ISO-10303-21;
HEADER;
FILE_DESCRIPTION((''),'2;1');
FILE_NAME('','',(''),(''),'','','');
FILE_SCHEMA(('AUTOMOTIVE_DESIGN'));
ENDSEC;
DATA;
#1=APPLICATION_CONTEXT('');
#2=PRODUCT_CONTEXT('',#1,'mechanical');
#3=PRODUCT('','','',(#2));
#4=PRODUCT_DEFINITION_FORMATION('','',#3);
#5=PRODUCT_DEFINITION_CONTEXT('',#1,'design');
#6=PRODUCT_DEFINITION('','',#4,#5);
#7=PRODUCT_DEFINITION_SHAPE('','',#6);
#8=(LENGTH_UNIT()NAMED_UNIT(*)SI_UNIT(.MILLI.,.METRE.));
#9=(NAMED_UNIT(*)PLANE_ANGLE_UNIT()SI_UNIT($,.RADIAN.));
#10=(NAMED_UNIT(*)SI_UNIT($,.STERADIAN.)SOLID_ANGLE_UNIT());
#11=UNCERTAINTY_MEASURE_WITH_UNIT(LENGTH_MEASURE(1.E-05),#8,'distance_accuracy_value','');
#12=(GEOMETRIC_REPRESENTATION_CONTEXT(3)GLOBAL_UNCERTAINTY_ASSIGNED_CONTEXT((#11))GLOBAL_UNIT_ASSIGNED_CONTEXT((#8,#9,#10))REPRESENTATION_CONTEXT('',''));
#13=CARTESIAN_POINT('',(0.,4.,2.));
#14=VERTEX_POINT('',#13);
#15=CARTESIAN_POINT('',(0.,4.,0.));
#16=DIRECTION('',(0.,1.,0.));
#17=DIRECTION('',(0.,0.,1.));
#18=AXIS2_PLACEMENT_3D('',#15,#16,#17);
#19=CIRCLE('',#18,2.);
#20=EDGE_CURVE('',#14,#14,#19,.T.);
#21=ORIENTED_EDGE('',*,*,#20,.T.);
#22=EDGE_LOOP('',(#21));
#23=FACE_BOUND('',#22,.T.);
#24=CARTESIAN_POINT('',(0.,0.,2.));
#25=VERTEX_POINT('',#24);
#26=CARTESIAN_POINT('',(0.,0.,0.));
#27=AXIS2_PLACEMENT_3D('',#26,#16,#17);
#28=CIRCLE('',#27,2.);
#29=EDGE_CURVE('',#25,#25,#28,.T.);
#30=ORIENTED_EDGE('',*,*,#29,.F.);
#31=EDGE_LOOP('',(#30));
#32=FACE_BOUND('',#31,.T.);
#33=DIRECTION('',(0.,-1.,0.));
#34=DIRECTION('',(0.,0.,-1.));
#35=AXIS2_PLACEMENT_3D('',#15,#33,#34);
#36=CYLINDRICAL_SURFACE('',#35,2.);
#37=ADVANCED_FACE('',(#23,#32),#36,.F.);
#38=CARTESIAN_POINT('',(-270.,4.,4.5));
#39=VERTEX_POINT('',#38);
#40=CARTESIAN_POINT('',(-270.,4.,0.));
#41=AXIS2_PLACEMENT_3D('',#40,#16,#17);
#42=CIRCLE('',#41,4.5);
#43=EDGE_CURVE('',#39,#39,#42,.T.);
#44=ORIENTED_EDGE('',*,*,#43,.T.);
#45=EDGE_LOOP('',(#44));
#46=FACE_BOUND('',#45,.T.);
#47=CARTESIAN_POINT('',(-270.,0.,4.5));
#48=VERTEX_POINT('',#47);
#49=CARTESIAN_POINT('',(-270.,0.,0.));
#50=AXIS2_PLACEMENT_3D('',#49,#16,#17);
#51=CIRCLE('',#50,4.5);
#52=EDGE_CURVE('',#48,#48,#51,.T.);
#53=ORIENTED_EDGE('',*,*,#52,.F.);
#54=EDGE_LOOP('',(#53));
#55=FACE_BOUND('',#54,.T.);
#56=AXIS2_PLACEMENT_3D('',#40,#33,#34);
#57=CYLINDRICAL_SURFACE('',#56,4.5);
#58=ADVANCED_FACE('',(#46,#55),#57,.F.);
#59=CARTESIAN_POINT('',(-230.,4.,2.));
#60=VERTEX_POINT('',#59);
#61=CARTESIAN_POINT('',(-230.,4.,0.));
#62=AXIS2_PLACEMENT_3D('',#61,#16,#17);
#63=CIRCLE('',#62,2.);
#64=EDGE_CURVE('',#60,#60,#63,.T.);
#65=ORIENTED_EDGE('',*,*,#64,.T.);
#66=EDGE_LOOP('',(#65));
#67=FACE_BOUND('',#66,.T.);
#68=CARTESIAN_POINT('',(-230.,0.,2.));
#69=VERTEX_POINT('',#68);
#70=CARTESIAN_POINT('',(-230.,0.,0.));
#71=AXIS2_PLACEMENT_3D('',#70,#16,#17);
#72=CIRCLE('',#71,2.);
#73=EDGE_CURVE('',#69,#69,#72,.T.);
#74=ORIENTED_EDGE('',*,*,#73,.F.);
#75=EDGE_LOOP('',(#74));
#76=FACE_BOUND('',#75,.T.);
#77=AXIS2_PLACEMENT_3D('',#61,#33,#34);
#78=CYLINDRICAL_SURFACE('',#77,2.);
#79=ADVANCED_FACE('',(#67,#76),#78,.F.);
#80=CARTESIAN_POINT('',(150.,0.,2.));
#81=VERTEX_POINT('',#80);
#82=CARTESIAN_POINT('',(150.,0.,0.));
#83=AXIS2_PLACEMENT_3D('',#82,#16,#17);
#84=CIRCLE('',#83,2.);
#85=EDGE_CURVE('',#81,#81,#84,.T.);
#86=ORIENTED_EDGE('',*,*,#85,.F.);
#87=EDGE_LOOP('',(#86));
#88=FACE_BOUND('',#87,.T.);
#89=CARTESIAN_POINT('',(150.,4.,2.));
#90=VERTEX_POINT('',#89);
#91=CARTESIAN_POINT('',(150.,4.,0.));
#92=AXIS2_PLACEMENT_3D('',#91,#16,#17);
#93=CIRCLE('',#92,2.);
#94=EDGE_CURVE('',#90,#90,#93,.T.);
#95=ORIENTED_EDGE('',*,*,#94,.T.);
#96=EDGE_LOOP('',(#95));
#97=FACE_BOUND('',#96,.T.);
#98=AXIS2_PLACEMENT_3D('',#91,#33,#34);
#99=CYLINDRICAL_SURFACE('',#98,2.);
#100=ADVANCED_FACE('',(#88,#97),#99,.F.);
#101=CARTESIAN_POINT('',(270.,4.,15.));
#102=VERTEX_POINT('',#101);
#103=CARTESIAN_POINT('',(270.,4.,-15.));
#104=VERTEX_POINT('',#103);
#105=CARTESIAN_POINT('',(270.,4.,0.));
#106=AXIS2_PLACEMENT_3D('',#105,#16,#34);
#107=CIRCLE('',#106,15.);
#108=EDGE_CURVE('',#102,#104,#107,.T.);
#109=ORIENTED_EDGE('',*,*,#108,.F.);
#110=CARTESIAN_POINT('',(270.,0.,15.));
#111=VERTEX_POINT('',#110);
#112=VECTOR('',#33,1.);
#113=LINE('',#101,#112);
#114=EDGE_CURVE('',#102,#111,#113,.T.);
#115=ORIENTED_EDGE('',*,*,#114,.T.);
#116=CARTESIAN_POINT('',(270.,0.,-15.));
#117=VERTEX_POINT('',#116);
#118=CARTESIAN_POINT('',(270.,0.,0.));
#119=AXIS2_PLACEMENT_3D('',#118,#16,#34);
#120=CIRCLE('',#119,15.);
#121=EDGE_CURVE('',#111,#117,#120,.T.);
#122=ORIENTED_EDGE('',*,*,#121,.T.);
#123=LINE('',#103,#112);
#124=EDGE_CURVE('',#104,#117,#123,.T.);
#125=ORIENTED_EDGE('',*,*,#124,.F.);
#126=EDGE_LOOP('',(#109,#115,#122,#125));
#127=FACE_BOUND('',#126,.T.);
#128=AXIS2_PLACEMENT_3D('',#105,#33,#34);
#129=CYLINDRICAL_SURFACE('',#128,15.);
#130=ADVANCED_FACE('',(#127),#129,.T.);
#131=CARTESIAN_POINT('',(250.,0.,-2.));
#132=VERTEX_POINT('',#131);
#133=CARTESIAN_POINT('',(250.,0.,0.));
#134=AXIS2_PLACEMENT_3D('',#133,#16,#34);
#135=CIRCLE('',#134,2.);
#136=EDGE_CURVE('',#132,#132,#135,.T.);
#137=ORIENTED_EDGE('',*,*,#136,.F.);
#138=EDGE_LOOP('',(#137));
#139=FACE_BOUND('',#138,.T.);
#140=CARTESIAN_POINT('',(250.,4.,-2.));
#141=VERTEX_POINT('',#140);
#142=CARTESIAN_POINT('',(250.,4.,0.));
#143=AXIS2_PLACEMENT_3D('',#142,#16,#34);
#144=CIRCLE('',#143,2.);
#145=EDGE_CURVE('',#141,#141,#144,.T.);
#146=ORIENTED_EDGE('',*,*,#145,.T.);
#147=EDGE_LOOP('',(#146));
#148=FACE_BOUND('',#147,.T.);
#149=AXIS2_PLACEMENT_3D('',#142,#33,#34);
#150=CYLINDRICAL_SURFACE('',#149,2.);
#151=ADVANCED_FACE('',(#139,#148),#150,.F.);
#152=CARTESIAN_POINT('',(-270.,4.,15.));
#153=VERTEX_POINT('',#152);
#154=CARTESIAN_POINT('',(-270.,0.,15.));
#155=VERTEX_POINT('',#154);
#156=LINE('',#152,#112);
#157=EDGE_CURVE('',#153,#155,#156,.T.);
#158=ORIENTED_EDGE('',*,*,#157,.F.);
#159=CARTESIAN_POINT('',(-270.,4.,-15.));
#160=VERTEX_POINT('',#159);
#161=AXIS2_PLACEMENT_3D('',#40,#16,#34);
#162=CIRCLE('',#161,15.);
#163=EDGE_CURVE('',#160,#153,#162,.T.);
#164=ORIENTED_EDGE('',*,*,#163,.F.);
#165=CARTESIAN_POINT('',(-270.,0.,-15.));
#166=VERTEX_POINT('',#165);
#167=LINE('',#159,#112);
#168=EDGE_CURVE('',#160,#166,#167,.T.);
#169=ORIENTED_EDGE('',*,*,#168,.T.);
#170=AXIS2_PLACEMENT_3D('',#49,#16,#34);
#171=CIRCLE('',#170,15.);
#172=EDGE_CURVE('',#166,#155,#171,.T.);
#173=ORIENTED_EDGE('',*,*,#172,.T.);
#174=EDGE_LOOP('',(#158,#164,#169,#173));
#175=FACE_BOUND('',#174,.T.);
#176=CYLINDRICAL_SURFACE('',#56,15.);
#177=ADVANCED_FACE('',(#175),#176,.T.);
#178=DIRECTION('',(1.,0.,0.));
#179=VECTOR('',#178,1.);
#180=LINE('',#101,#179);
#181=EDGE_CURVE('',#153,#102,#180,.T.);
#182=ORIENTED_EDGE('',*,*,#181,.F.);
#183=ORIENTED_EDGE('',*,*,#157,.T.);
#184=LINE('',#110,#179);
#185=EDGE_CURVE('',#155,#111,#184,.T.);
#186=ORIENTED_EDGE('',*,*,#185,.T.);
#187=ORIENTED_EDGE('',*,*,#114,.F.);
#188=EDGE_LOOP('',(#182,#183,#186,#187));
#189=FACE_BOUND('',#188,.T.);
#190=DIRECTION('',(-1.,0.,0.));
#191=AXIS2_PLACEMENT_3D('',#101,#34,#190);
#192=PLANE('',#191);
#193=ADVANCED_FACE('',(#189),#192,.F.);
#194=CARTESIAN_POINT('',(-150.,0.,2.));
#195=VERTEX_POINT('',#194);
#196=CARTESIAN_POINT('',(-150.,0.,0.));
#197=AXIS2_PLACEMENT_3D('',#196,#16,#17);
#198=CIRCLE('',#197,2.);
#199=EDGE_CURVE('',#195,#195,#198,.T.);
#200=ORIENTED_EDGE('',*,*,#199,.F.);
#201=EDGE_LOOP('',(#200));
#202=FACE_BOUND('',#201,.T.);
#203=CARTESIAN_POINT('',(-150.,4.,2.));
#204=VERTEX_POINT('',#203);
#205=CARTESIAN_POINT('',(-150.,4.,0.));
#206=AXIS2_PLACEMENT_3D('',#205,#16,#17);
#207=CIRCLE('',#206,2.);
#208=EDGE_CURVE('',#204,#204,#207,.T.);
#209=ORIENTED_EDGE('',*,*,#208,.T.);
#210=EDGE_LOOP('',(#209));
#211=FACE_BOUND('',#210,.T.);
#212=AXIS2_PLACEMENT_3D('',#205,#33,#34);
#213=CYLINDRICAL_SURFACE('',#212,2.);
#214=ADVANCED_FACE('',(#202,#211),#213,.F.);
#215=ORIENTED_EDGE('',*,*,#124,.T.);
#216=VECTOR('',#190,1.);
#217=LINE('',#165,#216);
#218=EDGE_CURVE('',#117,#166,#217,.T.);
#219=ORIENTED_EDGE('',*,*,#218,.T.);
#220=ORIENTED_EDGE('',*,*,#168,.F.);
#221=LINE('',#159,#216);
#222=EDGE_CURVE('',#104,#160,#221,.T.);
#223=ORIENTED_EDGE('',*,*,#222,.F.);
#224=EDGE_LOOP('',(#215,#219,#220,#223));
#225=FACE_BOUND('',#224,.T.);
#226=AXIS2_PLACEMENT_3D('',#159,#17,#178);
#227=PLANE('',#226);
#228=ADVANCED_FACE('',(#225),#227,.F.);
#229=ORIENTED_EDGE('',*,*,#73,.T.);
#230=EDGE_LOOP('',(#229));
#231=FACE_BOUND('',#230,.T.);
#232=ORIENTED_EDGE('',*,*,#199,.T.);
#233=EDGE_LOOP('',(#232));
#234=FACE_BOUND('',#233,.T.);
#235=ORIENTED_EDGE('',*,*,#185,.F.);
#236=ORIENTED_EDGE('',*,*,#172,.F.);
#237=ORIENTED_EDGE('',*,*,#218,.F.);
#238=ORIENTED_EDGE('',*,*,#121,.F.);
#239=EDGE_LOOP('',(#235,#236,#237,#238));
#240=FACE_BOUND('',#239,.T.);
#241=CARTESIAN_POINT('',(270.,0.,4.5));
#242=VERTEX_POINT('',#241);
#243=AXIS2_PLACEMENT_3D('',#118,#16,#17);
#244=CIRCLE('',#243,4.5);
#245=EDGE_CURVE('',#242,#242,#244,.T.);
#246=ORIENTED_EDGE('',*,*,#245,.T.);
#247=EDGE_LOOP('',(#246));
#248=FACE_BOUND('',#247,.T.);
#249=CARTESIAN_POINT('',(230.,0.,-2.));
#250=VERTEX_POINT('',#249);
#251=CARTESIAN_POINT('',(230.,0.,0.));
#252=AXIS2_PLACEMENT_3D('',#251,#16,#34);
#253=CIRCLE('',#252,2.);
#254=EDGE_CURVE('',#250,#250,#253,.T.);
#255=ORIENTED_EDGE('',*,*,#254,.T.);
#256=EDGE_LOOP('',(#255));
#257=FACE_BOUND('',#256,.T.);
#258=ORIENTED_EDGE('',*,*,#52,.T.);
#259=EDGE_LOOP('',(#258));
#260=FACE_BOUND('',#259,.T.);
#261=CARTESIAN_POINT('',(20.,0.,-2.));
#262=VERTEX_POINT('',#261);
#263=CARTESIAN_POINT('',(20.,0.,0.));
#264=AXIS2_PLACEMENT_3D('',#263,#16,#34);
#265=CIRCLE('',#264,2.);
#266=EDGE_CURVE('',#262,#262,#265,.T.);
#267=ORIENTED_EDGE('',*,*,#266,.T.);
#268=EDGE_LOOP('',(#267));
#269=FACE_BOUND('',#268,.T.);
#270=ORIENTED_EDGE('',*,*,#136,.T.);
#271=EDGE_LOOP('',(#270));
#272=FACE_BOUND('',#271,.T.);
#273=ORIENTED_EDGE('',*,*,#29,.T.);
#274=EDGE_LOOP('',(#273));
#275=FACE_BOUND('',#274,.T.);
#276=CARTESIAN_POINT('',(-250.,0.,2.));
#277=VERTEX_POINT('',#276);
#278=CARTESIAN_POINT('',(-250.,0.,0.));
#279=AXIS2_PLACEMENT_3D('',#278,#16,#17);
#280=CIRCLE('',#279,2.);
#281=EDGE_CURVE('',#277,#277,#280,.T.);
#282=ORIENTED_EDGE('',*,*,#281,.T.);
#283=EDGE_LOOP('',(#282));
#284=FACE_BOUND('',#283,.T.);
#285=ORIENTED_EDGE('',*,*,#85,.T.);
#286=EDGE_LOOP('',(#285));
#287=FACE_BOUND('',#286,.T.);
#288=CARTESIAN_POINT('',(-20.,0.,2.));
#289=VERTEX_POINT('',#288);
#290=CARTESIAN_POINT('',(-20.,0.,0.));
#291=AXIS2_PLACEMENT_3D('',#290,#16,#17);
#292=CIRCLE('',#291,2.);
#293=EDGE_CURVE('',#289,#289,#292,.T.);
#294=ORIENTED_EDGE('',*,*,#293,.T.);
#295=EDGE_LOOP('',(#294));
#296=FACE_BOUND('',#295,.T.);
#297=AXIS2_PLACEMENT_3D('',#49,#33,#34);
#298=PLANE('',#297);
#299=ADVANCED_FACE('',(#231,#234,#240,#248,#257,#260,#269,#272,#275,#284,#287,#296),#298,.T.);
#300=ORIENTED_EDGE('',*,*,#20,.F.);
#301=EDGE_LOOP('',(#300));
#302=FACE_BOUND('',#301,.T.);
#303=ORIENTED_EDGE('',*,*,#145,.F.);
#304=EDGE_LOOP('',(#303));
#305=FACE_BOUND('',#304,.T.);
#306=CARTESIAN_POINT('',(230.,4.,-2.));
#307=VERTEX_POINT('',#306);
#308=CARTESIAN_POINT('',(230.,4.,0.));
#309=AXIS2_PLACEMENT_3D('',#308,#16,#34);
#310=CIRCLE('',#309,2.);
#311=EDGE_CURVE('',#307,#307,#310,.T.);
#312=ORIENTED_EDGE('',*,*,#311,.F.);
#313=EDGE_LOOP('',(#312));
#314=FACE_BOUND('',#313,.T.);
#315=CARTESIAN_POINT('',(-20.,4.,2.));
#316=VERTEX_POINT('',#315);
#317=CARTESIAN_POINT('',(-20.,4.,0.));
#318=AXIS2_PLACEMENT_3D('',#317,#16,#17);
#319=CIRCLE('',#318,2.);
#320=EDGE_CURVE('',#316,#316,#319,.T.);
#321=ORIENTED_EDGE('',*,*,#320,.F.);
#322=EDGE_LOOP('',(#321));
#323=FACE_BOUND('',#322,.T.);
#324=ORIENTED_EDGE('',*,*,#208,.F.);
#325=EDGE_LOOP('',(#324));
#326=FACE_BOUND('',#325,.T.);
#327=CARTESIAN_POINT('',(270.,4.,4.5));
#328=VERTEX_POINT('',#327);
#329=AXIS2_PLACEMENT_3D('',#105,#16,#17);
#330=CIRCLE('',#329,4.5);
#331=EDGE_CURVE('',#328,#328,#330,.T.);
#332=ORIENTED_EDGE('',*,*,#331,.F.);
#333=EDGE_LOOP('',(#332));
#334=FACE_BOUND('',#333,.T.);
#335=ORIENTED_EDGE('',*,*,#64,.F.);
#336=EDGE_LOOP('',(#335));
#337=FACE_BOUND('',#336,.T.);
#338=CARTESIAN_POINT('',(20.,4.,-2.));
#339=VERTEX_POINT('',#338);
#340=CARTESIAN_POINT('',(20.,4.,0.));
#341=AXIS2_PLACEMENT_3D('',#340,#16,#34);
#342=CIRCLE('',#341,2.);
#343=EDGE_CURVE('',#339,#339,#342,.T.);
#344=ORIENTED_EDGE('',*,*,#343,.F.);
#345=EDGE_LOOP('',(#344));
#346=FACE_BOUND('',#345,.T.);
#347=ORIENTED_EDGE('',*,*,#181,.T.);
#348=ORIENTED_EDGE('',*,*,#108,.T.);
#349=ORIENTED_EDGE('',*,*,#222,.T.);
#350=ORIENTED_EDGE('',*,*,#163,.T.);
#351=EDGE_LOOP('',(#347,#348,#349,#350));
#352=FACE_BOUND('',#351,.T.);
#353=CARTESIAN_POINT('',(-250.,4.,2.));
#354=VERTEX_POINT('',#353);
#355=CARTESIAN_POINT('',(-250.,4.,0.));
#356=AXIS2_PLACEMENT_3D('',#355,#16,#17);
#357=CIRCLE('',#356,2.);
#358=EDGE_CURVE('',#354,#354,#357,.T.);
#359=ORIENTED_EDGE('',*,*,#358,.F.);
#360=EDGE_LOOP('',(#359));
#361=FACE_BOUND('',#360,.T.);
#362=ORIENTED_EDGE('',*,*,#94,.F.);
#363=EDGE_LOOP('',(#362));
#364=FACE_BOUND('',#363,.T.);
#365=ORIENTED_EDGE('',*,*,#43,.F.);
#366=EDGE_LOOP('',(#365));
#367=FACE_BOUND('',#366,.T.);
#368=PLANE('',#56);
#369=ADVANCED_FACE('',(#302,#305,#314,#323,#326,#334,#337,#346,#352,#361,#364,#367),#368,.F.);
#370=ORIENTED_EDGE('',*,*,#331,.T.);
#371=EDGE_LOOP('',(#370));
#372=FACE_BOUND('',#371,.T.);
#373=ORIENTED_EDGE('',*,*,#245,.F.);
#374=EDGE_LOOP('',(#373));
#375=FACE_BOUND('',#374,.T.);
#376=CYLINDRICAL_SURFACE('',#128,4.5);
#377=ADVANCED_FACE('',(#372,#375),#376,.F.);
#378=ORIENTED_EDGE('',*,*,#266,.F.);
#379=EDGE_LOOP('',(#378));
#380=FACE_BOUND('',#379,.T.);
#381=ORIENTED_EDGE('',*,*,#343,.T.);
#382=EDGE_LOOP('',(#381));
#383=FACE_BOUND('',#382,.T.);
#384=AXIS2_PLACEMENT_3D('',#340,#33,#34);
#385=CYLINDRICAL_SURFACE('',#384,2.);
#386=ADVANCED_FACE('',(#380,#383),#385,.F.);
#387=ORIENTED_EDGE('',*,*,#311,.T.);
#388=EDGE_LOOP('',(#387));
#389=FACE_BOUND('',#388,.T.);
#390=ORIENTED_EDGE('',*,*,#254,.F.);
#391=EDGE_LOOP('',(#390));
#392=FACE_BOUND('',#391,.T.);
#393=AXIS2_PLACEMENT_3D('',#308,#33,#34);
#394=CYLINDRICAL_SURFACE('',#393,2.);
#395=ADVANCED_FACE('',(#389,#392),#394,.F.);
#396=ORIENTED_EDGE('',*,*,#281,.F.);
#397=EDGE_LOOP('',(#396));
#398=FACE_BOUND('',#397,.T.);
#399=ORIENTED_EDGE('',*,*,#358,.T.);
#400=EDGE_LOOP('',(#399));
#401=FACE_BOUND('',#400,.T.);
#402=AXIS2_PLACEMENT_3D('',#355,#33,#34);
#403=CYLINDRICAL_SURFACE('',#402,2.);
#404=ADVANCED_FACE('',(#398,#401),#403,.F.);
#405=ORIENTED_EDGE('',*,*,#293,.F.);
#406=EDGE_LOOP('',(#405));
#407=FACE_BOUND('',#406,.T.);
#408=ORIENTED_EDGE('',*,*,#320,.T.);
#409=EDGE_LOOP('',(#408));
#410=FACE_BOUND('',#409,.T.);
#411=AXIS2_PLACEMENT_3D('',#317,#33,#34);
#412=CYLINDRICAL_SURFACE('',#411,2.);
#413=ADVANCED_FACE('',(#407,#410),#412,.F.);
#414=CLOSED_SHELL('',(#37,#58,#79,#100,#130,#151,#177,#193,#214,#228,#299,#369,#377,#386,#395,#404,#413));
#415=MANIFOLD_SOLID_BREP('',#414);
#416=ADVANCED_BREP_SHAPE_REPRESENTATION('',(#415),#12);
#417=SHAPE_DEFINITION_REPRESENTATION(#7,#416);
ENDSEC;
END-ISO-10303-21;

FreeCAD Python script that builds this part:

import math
import FreeCAD as App
import Part
import Sketcher
Q = App.Units.Quantity

doc = App.newDocument("Part")
body = doc.addObject("PartDesign::Body", "Body")

# Sketch on XZ plane
sketch1 = doc.addObject("Sketcher::SketchObject", "Sketch")
body.addObject(sketch1)
sketch1.AttachmentSupport = (doc.XZ_Plane, [""])
sketch1.MapMode = "FlatFace"
sketch1.addGeometry(Part.LineSegment(App.Vector(270, -15, 0), App.Vector(-270, -15, 0)), False)
sketch1.addGeometry(Part.ArcOfCircle(Part.Circle(App.Vector(-270, 0, 0), App.Vector(0, 0, 1), 15), math.radians(90), math.radians(270)), False)
sketch1.addGeometry(Part.LineSegment(App.Vector(-270, 15, 0), App.Vector(270, 15, 0)), False)
sketch1.addGeometry(Part.ArcOfCircle(Part.Circle(App.Vector(270, 0, 0), App.Vector(0, 0, 1), 15), math.radians(-90), math.radians(90)), False)
sketch1.addGeometry(Part.Circle(App.Vector(270, 0, 0), App.Vector(0, 0, 1), 4.5), False)
sketch1.addGeometry(Part.Circle(App.Vector(250, 0, 0), App.Vector(0, 0, 1), 2), False)
sketch1.addGeometry(Part.Circle(App.Vector(230, 0, 0), App.Vector(0, 0, 1), 2), False)
sketch1.addGeometry(Part.Circle(App.Vector(150, 0, 0), App.Vector(0, 0, 1), 2), False)
sketch1.addGeometry(Part.Circle(App.Vector(20, 0, 0), App.Vector(0, 0, 1), 2), False)
sketch1.addGeometry(Part.Circle(App.Vector(0, 0, 0), App.Vector(0, 0, 1), 2), False)
sketch1.addGeometry(Part.Circle(App.Vector(-20, 0, 0), App.Vector(0, 0, 1), 2), False)
sketch1.addGeometry(Part.Circle(App.Vector(-150, 0, 0), App.Vector(0, 0, 1), 2), False)
sketch1.addGeometry(Part.Circle(App.Vector(-230, 0, 0), App.Vector(0, 0, 1), 2), False)
sketch1.addGeometry(Part.Circle(App.Vector(-250, 0, 0), App.Vector(0, 0, 1), 2), False)
sketch1.addGeometry(Part.Circle(App.Vector(-270, 0, 0), App.Vector(0, 0, 1), 4.5), False)
sketch1.addConstraint(Sketcher.Constraint("Tangent", 0, 2, 1, 2))
sketch1.addConstraint(Sketcher.Constraint("Tangent", 1, 1, 2, 1))
sketch1.addConstraint(Sketcher.Constraint("Tangent", 2, 2, 3, 2))
sketch1.addConstraint(Sketcher.Constraint("Tangent", 3, 1, 0, 1))
sketch1.addConstraint(Sketcher.Constraint("Horizontal", 0))
sketch1.addConstraint(Sketcher.Constraint("Horizontal", 2))
sketch1.addConstraint(Sketcher.Constraint("Coincident", 9, 3, -1, 1))
sketch1.addConstraint(Sketcher.Constraint("Coincident", 4, 3, 3, 3))
sketch1.addConstraint(Sketcher.Constraint("Coincident", 14, 3, 1, 3))
sketch1.addConstraint(Sketcher.Constraint("Equal", 5, 6))
sketch1.addConstraint(Sketcher.Constraint("Equal", 6, 7))
sketch1.addConstraint(Sketcher.Constraint("Equal", 7, 8))
sketch1.addConstraint(Sketcher.Constraint("Equal", 8, 9))
sketch1.addConstraint(Sketcher.Constraint("Equal", 9, 10))
sketch1.addConstraint(Sketcher.Constraint("Equal", 10, 11))
sketch1.addConstraint(Sketcher.Constraint("Equal", 11, 12))
sketch1.addConstraint(Sketcher.Constraint("Equal", 12, 13))
sketch1.addConstraint(Sketcher.Constraint("Equal", 4, 14))
sketch1.addConstraint(Sketcher.Constraint("Symmetric", 1, 3, 3, 3, -1, 1))
sketch1.addConstraint(Sketcher.Constraint("Symmetric", 8, 3, 10, 3, -1, 1))
sketch1.addConstraint(Sketcher.Constraint("Symmetric", 7, 3, 11, 3, -1, 1))
sketch1.addConstraint(Sketcher.Constraint("Symmetric", 6, 3, 12, 3, -1, 1))
sketch1.addConstraint(Sketcher.Constraint("Symmetric", 5, 3, 13, 3, -1, 1))
sketch1.addConstraint(Sketcher.Constraint("PointOnObject", 5, 3, -1))
sketch1.addConstraint(Sketcher.Constraint("PointOnObject", 6, 3, -1))
sketch1.addConstraint(Sketcher.Constraint("PointOnObject", 7, 3, -1))
sketch1.addConstraint(Sketcher.Constraint("PointOnObject", 8, 3, -1))
sketch1.addConstraint(Sketcher.Constraint("Diameter", 4, Q("9 mm")))
sketch1.addConstraint(Sketcher.Constraint("Diameter", 5, Q("4 mm")))
sketch1.addConstraint(Sketcher.Constraint("Radius", 1, Q("15 mm")))
sketch1.addConstraint(Sketcher.Constraint("DistanceX", 0, 2, 0, 1, Q("540 mm")))
sketch1.addConstraint(Sketcher.Constraint("DistanceX", -1, 1, 5, 3, Q("250 mm")))
sketch1.addConstraint(Sketcher.Constraint("DistanceX", -1, 1, 6, 3, Q("230 mm")))
sketch1.addConstraint(Sketcher.Constraint("DistanceX", -1, 1, 7, 3, Q("150 mm")))
sketch1.addConstraint(Sketcher.Constraint("DistanceX", -1, 1, 8, 3, Q("20 mm")))
pad1 = doc.addObject("PartDesign::Pad", "Pad")
body.addObject(pad1)
pad1.Profile = sketch1
pad1.Length = 4
pad1.Reversed = True

doc.recompute()
